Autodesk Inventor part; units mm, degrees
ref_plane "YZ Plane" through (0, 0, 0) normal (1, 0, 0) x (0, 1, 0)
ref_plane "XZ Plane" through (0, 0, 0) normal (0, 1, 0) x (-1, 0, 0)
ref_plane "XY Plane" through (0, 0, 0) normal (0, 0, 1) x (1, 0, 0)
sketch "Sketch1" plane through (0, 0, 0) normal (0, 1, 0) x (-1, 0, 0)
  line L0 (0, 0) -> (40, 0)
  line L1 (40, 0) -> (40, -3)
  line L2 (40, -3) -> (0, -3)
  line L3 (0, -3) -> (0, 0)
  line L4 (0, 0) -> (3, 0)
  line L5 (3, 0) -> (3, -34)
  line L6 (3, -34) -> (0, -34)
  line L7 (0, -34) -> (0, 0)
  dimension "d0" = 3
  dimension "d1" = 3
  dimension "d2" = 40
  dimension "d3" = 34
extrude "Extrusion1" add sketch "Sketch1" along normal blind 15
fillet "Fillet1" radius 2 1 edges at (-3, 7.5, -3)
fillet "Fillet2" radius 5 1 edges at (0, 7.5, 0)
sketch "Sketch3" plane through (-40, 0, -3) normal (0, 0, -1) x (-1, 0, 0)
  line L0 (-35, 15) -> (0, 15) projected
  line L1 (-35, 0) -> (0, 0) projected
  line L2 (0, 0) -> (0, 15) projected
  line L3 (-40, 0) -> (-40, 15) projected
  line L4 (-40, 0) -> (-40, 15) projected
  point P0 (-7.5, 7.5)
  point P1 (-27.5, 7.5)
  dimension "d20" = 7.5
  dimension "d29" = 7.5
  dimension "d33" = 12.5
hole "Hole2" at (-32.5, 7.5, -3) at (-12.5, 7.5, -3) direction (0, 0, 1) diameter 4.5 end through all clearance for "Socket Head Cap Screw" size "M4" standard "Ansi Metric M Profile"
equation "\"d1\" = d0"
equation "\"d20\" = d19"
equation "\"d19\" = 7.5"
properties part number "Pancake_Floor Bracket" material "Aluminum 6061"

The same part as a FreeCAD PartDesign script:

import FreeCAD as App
import Part
import Sketcher
from FreeCAD import Vector
Q = App.Units.Quantity


def edges_at(feature, points):
    """Names of the edges that pass closest to the given points."""
    edges = feature.Shape.Edges
    near = lambda p: min(range(len(edges)), key=lambda i: edges[i].distToShape(Part.Vertex(*p))[0])
    return sorted({f"Edge{near(p) + 1}" for p in points})

doc = App.newDocument("Part")
body = doc.addObject("PartDesign::Body", "Body")

# Sketch on XZ plane
sketch1 = doc.addObject("Sketcher::SketchObject", "Sketch")
body.addObject(sketch1)
sketch1.AttachmentSupport = (doc.XZ_Plane, [""])
sketch1.MapMode = "FlatFace"
sketch1.addGeometry([
    Part.LineSegment(Vector(0, 0, 0), Vector(0, -34, 0)),  # 0
    Part.LineSegment(Vector(0, -34, 0), Vector(-3, -34, 0)),  # 1
    Part.LineSegment(Vector(-3, -34, 0), Vector(-3, -3, 0)),  # 2
    Part.LineSegment(Vector(-3, -3, 0), Vector(-40, -3, 0)),  # 3
    Part.LineSegment(Vector(-40, -3, 0), Vector(-40, 0, 0)),  # 4
    Part.LineSegment(Vector(-40, 0, 0), Vector(0, 0, 0)),  # 5
], False)
sketch1.addConstraint([
    Sketcher.Constraint("Coincident", 0, 2, 1, 1),
    Sketcher.Constraint("Coincident", 1, 2, 2, 1),
    Sketcher.Constraint("Coincident", 2, 2, 3, 1),
    Sketcher.Constraint("Coincident", 3, 2, 4, 1),
    Sketcher.Constraint("Coincident", 4, 2, 5, 1),
    Sketcher.Constraint("Coincident", 5, 2, 0, 1),
    Sketcher.Constraint("Vertical", 0),
    Sketcher.Constraint("Horizontal", 1),
    Sketcher.Constraint("Vertical", 2),
    Sketcher.Constraint("Horizontal", 3),
    Sketcher.Constraint("Vertical", 4),
    Sketcher.Constraint("Horizontal", 5),
    Sketcher.Constraint("Coincident", 5, 2, -1, 1),
    Sketcher.Constraint("Equal", 1, 4),
    Sketcher.Constraint("DistanceX", 1, 2, 1, 1, Q("3 mm")),
    Sketcher.Constraint("DistanceX", 5, 1, 5, 2, Q("40 mm")),
    Sketcher.Constraint("DistanceY", 0, 2, 0, 1, Q("34 mm")),
])
pad1 = doc.addObject("PartDesign::Pad", "Pad")
body.addObject(pad1)
pad1.Profile = sketch1
pad1.Length = 15
pad1.Reversed = True
doc.recompute()

fillet = doc.addObject("PartDesign::Fillet", "Fillet")
body.addObject(fillet)
fillet.Base = (pad1, edges_at(pad1, [(-3, 7.5, -3)]))
fillet.Radius = 2
doc.recompute()

fillet2 = doc.addObject("PartDesign::Fillet", "Fillet001")
body.addObject(fillet2)
fillet2.Base = (fillet, edges_at(fillet, [(0, 7.5, 0)]))
fillet2.Radius = 5

# Sketch on XY plane
sketch2 = doc.addObject("Sketcher::SketchObject", "Sketch001")
body.addObject(sketch2)
sketch2.AttachmentSupport = (doc.XY_Plane, [""])
sketch2.MapMode = "FlatFace"
sketch2.AttachmentOffset = App.Placement(Vector(0, 0, -3), App.Rotation())
sketch2.addGeometry([
    Part.Circle(Vector(-32.5, 7.5, 0), Vector(0, 0, 1), 2.2),
    Part.Circle(Vector(-12.5, 7.5, 0), Vector(0, 0, 1), 2.2),
], False)
sketch2.addConstraint([
    Sketcher.Constraint("Equal", 0, 1),
    Sketcher.Constraint("Horizontal", 0, 3, 1, 3),
    Sketcher.Constraint("Diameter", 0, Q("4.5 mm")),
    Sketcher.Constraint("DistanceX", 0, 3, 1, 3, Q("20 mm")),
    Sketcher.Constraint("DistanceX", 0, 3, -1, 1, Q("32.5 mm")),
    Sketcher.Constraint("DistanceY", -1, 1, 0, 3, Q("7.5 mm")),
])
doc.recompute()
hole = doc.addObject("PartDesign::Hole", "Hole")
body.addObject(hole)
hole.Profile = sketch2
hole.ThreadType = "None"
hole.Diameter = 4.5
hole.DepthType = "ThroughAll"
hole.Reversed = True

doc.recompute()
